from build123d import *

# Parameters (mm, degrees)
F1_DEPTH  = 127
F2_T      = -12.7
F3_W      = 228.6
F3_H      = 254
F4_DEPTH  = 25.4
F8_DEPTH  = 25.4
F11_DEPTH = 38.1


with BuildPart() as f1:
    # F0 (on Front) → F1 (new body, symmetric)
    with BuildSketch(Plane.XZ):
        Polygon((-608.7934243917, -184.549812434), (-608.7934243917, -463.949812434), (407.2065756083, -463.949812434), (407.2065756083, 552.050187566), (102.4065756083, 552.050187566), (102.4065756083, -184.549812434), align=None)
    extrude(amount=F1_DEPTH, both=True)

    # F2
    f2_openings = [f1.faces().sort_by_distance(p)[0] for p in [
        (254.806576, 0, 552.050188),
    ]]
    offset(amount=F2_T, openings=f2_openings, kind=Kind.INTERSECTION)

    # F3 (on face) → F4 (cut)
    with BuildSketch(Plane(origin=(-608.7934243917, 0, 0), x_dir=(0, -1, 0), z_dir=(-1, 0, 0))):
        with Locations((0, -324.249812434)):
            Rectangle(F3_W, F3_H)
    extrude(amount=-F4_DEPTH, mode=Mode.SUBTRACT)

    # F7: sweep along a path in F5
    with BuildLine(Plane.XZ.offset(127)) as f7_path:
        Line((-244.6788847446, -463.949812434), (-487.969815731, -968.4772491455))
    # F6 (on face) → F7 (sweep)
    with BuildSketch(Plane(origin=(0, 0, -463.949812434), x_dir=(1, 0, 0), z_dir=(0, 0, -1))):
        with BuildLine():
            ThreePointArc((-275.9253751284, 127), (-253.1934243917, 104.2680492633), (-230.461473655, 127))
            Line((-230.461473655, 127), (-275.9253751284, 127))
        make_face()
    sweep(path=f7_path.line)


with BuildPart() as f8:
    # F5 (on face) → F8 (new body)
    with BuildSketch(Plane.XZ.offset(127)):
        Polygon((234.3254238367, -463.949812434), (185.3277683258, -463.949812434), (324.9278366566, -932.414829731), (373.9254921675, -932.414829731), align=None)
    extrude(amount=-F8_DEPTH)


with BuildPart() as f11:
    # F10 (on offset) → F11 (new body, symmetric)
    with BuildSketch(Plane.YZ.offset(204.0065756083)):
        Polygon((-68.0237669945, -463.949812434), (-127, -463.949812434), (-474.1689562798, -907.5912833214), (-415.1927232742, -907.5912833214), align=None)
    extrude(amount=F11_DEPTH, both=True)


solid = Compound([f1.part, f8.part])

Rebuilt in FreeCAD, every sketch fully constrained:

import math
import FreeCAD as App
import Part
import Sketcher

V = App.Vector
Q = App.Units.Quantity


def faces_at(feature, points):
    """Names of the faces that lie closest to the given points."""
    faces = feature.Shape.Faces
    near = lambda p: min(range(len(faces)), key=lambda i: faces[i].distToShape(Part.Vertex(*p))[0])
    return sorted({f"Face{near(p) + 1}" for p in points})

doc = App.newDocument("Part")
body = doc.addObject("PartDesign::Body", "Body")

# Sketch on XZ plane
sketch1 = doc.addObject("Sketcher::SketchObject", "Sketch")
body.addObject(sketch1)
sketch1.AttachmentSupport = (doc.XZ_Plane, [""])
sketch1.MapMode = "FlatFace"
sketch1.addGeometry([
    Part.LineSegment(V(-609, -185, 0), V(-609, -464, 0)),  # 0
    Part.LineSegment(V(-609, -464, 0), V(407, -464, 0)),  # 1
    Part.LineSegment(V(407, -464, 0), V(407, 552, 0)),  # 2
    Part.LineSegment(V(407, 552, 0), V(102, 552, 0)),  # 3
    Part.LineSegment(V(102, 552, 0), V(102, -185, 0)),  # 4
    Part.LineSegment(V(102, -185, 0), V(-609, -185, 0)),  # 5
], False)
sketch1.addConstraint([
    Sketcher.Constraint("Coincident", 0, 2, 1, 1),
    Sketcher.Constraint("Coincident", 1, 2, 2, 1),
    Sketcher.Constraint("Coincident", 2, 2, 3, 1),
    Sketcher.Constraint("Coincident", 3, 2, 4, 1),
    Sketcher.Constraint("Coincident", 4, 2, 5, 1),
    Sketcher.Constraint("Coincident", 5, 2, 0, 1),
    Sketcher.Constraint("Vertical", 0),
    Sketcher.Constraint("Horizontal", 1),
    Sketcher.Constraint("Vertical", 2),
    Sketcher.Constraint("Horizontal", 3),
    Sketcher.Constraint("Vertical", 4),
    Sketcher.Constraint("Horizontal", 5),
    Sketcher.Constraint("Equal", 1, 2),
    Sketcher.Constraint("DistanceX", 1, 1, 1, 2, Q("40 in")),
    Sketcher.Constraint("DistanceX", 3, 2, 3, 1, Q("12 in")),
    Sketcher.Constraint("DistanceY", 0, 2, 0, 1, Q("11 in")),
    Sketcher.Constraint("DistanceX", 0, 2, -1, 1, 608.793424),
    Sketcher.Constraint("DistanceY", 0, 2, -1, 1, 463.949812),
])
pad1 = doc.addObject("PartDesign::Pad", "Pad")
body.addObject(pad1)
pad1.Profile = sketch1
pad1.Length = Q("10 in")
pad1.Midplane = True
doc.recompute()

thickness = doc.addObject("PartDesign::Thickness", "Thickness")
body.addObject(thickness)
thickness.Base = (pad1, faces_at(pad1, [(254.807, 0, 552.05)]))
thickness.Value = Q("0.5 in")
thickness.Reversed = True
thickness.Join = "Intersection"

# Sketch on YZ plane
sketch2 = doc.addObject("Sketcher::SketchObject", "Sketch001")
body.addObject(sketch2)
sketch2.AttachmentSupport = (doc.YZ_Plane, [""])
sketch2.MapMode = "FlatFace"
sketch2.AttachmentOffset = App.Placement(V(0, 0, -608.793424), App.Rotation())
sketch2.addGeometry([
    Part.LineSegment(V(114, -197, 0), V(114, -451, 0)),
    Part.LineSegment(V(114, -451, 0), V(-114, -451, 0)),
    Part.LineSegment(V(-114, -451, 0), V(-114, -197, 0)),
    Part.LineSegment(V(-114, -197, 0), V(114, -197, 0)),
], False)
sketch2.addConstraint([
    Sketcher.Constraint("Coincident", 0, 2, 1, 1),
    Sketcher.Constraint("Coincident", 1, 2, 2, 1),
    Sketcher.Constraint("Coincident", 2, 2, 3, 1),
    Sketcher.Constraint("Coincident", 3, 2, 0, 1),
    Sketcher.Constraint("Vertical", 0),
    Sketcher.Constraint("Horizontal", 1),
    Sketcher.Constraint("Vertical", 2),
    Sketcher.Constraint("Horizontal", 3),
    Sketcher.Constraint("DistanceX", 1, 2, 1, 1, Q("9 in")),
    Sketcher.Constraint("DistanceY", 0, 2, 0, 1, Q("10 in")),
    Sketcher.Constraint("DistanceX", -1, 1, 0, 2, Q("4.5 in")),
    Sketcher.Constraint("DistanceY", 0, 2, -1, 1, 451.249812),
])
pocket1 = doc.addObject("PartDesign::Pocket", "Pocket")
body.addObject(pocket1)
pocket1.Profile = sketch2
pocket1.Length = Q("1 in")
pocket1.Reversed = True

# Sketch on XY plane
sketch3 = doc.addObject("Sketcher::SketchObject", "Sketch002")
body.addObject(sketch3)
sketch3.AttachmentSupport = (doc.XY_Plane, [""])
sketch3.MapMode = "FlatFace"
sketch3.AttachmentOffset = App.Placement(V(0, 0, -463.949812), App.Rotation())
sketch3.addGeometry([
    Part.ArcOfCircle(Part.Circle(V(-253, -127, 0), V(0, 0, 1), 23), math.radians(0), math.radians(180)),
    Part.LineSegment(V(-230, -127, 0), V(-276, -127, 0)),
], False)
sketch3.addConstraint([
    Sketcher.Constraint("Coincident", 0, 1, 1, 1),
    Sketcher.Constraint("Coincident", 1, 2, 0, 2),
    Sketcher.Constraint("Horizontal", 1),
    Sketcher.Constraint("DistanceY", 0, 3, -1, 1, Q("5 in")),
    Sketcher.Constraint("DistanceY", 0, 1, -1, 1, Q("5 in")),
    Sketcher.Constraint("Radius", 0, 22.731951),
    Sketcher.Constraint("DistanceX", 0, 3, -1, 1, 253.193424),
])

# Sketch on an angled plane
sketch4 = doc.addObject("Sketcher::SketchObject", "Sketch003")
body.addObject(sketch4)
sketch4.Placement = App.Placement(V(-17.001681, 0, 8.198473), App.Rotation(V(-0.434352248, 0, -0.900743096), V(0, 1, 0), V(0.900743096, 0, -0.434352248), "ZXY"))
sketch4.addGeometry(Part.LineSegment(V(524, -127, 0), V(1084, -127, 0)), False)
sketch4.addConstraint([
    Sketcher.Constraint("Horizontal", 0),
    Sketcher.Constraint("DistanceY", 0, 1, -1, 1, Q("5 in")),
    Sketcher.Constraint("DistanceX", 0, 1, 0, 2, 560.123568),
    Sketcher.Constraint("DistanceX", -1, 1, 0, 1, 524.176414),
])
doc.recompute()

additivepipe = doc.addObject("PartDesign::AdditivePipe", "AdditivePipe")
body.addObject(additivepipe)
additivepipe.Profile = sketch3
additivepipe.Spine = (sketch4, ["Edge1"])
body2 = doc.addObject("PartDesign::Body", "Body001")

# Sketch on XZ plane
sketch5 = doc.addObject("Sketcher::SketchObject", "Sketch004")
body2.addObject(sketch5)
sketch5.AttachmentSupport = (doc.getObject("XZ_Plane001"), [""])
sketch5.MapMode = "FlatFace"
sketch5.AttachmentOffset = App.Placement(V(0, 0, 5 * 25.4), App.Rotation())
sketch5.addGeometry([
    Part.LineSegment(V(234, -464, 0), V(185, -464, 0)),
    Part.LineSegment(V(185, -464, 0), V(325, -932, 0)),
    Part.LineSegment(V(325, -932, 0), V(374, -932, 0)),
    Part.LineSegment(V(374, -932, 0), V(234, -464, 0)),
], False)
sketch5.addConstraint([
    Sketcher.Constraint("Coincident", 0, 2, 1, 1),
    Sketcher.Constraint("Coincident", 1, 2, 2, 1),
    Sketcher.Constraint("Coincident", 2, 2, 3, 1),
    Sketcher.Constraint("Coincident", 3, 2, 0, 1),
    Sketcher.Constraint("Horizontal", 0),
    Sketcher.Constraint("Horizontal", 2),
    Sketcher.Constraint("Parallel", 1, 3),
    Sketcher.Constraint("Distance", 1, 488.82272),
    Sketcher.Constraint("DistanceX", 0, 2, 0, 1, 48.997656),
    Sketcher.Constraint("DistanceX", -1, 1, 0, 2, 185.327768),
    Sketcher.Constraint("DistanceY", 1, 2, -1, 1, 932.41483),
    Sketcher.Constraint("DistanceX", 0, 2, 1, 2, 139.600068),
])
pad2 = doc.addObject("PartDesign::Pad", "Pad001")
body2.addObject(pad2)
pad2.Profile = sketch5
pad2.Length = Q("1 in")
pad2.Reversed = True
body3 = doc.addObject("PartDesign::Body", "Body002")

# Sketch on YZ plane
sketch6 = doc.addObject("Sketcher::SketchObject", "Sketch005")
body3.addObject(sketch6)
sketch6.AttachmentSupport = (doc.getObject("YZ_Plane002"), [""])
sketch6.MapMode = "FlatFace"
sketch6.AttachmentOffset = App.Placement(V(0, 0, 204.006576), App.Rotation())
sketch6.addGeometry([
    Part.LineSegment(V(-68, -464, 0), V(-127, -464, 0)),
    Part.LineSegment(V(-127, -464, 0), V(-474, -908, 0)),
    Part.LineSegment(V(-474, -908, 0), V(-415, -908, 0)),
    Part.LineSegment(V(-415, -908, 0), V(-68, -464, 0)),
], False)
sketch6.addConstraint([
    Sketcher.Constraint("Coincident", 0, 2, 1, 1),
    Sketcher.Constraint("Coincident", 1, 2, 2, 1),
    Sketcher.Constraint("Coincident", 2, 2, 3, 1),
    Sketcher.Constraint("Coincident", 3, 2, 0, 1),
    Sketcher.Constraint("Horizontal", 0),
    Sketcher.Constraint("Horizontal", 2),
    Sketcher.Constraint("Parallel", 1, 3),
    Sketcher.Constraint("DistanceX", 0, 2, -1, 1, Q("5 in")),
    Sketcher.Constraint("DistanceX", 0, 2, 0, 1, 58.976233),
    Sketcher.Constraint("DistanceY", 1, 2, 0, 2, 443.641471),
    Sketcher.Constraint("DistanceX", 1, 2, 3, 2, 406.145189),
    Sketcher.Constraint("DistanceY", 0, 2, -1, 1, 463.949812),
])
pad3 = doc.addObject("PartDesign::Pad", "Pad002")
body3.addObject(pad3)
pad3.Profile = sketch6
pad3.Length = Q("3 in")
pad3.Midplane = True
body3.Visibility = False

doc.recompute()
